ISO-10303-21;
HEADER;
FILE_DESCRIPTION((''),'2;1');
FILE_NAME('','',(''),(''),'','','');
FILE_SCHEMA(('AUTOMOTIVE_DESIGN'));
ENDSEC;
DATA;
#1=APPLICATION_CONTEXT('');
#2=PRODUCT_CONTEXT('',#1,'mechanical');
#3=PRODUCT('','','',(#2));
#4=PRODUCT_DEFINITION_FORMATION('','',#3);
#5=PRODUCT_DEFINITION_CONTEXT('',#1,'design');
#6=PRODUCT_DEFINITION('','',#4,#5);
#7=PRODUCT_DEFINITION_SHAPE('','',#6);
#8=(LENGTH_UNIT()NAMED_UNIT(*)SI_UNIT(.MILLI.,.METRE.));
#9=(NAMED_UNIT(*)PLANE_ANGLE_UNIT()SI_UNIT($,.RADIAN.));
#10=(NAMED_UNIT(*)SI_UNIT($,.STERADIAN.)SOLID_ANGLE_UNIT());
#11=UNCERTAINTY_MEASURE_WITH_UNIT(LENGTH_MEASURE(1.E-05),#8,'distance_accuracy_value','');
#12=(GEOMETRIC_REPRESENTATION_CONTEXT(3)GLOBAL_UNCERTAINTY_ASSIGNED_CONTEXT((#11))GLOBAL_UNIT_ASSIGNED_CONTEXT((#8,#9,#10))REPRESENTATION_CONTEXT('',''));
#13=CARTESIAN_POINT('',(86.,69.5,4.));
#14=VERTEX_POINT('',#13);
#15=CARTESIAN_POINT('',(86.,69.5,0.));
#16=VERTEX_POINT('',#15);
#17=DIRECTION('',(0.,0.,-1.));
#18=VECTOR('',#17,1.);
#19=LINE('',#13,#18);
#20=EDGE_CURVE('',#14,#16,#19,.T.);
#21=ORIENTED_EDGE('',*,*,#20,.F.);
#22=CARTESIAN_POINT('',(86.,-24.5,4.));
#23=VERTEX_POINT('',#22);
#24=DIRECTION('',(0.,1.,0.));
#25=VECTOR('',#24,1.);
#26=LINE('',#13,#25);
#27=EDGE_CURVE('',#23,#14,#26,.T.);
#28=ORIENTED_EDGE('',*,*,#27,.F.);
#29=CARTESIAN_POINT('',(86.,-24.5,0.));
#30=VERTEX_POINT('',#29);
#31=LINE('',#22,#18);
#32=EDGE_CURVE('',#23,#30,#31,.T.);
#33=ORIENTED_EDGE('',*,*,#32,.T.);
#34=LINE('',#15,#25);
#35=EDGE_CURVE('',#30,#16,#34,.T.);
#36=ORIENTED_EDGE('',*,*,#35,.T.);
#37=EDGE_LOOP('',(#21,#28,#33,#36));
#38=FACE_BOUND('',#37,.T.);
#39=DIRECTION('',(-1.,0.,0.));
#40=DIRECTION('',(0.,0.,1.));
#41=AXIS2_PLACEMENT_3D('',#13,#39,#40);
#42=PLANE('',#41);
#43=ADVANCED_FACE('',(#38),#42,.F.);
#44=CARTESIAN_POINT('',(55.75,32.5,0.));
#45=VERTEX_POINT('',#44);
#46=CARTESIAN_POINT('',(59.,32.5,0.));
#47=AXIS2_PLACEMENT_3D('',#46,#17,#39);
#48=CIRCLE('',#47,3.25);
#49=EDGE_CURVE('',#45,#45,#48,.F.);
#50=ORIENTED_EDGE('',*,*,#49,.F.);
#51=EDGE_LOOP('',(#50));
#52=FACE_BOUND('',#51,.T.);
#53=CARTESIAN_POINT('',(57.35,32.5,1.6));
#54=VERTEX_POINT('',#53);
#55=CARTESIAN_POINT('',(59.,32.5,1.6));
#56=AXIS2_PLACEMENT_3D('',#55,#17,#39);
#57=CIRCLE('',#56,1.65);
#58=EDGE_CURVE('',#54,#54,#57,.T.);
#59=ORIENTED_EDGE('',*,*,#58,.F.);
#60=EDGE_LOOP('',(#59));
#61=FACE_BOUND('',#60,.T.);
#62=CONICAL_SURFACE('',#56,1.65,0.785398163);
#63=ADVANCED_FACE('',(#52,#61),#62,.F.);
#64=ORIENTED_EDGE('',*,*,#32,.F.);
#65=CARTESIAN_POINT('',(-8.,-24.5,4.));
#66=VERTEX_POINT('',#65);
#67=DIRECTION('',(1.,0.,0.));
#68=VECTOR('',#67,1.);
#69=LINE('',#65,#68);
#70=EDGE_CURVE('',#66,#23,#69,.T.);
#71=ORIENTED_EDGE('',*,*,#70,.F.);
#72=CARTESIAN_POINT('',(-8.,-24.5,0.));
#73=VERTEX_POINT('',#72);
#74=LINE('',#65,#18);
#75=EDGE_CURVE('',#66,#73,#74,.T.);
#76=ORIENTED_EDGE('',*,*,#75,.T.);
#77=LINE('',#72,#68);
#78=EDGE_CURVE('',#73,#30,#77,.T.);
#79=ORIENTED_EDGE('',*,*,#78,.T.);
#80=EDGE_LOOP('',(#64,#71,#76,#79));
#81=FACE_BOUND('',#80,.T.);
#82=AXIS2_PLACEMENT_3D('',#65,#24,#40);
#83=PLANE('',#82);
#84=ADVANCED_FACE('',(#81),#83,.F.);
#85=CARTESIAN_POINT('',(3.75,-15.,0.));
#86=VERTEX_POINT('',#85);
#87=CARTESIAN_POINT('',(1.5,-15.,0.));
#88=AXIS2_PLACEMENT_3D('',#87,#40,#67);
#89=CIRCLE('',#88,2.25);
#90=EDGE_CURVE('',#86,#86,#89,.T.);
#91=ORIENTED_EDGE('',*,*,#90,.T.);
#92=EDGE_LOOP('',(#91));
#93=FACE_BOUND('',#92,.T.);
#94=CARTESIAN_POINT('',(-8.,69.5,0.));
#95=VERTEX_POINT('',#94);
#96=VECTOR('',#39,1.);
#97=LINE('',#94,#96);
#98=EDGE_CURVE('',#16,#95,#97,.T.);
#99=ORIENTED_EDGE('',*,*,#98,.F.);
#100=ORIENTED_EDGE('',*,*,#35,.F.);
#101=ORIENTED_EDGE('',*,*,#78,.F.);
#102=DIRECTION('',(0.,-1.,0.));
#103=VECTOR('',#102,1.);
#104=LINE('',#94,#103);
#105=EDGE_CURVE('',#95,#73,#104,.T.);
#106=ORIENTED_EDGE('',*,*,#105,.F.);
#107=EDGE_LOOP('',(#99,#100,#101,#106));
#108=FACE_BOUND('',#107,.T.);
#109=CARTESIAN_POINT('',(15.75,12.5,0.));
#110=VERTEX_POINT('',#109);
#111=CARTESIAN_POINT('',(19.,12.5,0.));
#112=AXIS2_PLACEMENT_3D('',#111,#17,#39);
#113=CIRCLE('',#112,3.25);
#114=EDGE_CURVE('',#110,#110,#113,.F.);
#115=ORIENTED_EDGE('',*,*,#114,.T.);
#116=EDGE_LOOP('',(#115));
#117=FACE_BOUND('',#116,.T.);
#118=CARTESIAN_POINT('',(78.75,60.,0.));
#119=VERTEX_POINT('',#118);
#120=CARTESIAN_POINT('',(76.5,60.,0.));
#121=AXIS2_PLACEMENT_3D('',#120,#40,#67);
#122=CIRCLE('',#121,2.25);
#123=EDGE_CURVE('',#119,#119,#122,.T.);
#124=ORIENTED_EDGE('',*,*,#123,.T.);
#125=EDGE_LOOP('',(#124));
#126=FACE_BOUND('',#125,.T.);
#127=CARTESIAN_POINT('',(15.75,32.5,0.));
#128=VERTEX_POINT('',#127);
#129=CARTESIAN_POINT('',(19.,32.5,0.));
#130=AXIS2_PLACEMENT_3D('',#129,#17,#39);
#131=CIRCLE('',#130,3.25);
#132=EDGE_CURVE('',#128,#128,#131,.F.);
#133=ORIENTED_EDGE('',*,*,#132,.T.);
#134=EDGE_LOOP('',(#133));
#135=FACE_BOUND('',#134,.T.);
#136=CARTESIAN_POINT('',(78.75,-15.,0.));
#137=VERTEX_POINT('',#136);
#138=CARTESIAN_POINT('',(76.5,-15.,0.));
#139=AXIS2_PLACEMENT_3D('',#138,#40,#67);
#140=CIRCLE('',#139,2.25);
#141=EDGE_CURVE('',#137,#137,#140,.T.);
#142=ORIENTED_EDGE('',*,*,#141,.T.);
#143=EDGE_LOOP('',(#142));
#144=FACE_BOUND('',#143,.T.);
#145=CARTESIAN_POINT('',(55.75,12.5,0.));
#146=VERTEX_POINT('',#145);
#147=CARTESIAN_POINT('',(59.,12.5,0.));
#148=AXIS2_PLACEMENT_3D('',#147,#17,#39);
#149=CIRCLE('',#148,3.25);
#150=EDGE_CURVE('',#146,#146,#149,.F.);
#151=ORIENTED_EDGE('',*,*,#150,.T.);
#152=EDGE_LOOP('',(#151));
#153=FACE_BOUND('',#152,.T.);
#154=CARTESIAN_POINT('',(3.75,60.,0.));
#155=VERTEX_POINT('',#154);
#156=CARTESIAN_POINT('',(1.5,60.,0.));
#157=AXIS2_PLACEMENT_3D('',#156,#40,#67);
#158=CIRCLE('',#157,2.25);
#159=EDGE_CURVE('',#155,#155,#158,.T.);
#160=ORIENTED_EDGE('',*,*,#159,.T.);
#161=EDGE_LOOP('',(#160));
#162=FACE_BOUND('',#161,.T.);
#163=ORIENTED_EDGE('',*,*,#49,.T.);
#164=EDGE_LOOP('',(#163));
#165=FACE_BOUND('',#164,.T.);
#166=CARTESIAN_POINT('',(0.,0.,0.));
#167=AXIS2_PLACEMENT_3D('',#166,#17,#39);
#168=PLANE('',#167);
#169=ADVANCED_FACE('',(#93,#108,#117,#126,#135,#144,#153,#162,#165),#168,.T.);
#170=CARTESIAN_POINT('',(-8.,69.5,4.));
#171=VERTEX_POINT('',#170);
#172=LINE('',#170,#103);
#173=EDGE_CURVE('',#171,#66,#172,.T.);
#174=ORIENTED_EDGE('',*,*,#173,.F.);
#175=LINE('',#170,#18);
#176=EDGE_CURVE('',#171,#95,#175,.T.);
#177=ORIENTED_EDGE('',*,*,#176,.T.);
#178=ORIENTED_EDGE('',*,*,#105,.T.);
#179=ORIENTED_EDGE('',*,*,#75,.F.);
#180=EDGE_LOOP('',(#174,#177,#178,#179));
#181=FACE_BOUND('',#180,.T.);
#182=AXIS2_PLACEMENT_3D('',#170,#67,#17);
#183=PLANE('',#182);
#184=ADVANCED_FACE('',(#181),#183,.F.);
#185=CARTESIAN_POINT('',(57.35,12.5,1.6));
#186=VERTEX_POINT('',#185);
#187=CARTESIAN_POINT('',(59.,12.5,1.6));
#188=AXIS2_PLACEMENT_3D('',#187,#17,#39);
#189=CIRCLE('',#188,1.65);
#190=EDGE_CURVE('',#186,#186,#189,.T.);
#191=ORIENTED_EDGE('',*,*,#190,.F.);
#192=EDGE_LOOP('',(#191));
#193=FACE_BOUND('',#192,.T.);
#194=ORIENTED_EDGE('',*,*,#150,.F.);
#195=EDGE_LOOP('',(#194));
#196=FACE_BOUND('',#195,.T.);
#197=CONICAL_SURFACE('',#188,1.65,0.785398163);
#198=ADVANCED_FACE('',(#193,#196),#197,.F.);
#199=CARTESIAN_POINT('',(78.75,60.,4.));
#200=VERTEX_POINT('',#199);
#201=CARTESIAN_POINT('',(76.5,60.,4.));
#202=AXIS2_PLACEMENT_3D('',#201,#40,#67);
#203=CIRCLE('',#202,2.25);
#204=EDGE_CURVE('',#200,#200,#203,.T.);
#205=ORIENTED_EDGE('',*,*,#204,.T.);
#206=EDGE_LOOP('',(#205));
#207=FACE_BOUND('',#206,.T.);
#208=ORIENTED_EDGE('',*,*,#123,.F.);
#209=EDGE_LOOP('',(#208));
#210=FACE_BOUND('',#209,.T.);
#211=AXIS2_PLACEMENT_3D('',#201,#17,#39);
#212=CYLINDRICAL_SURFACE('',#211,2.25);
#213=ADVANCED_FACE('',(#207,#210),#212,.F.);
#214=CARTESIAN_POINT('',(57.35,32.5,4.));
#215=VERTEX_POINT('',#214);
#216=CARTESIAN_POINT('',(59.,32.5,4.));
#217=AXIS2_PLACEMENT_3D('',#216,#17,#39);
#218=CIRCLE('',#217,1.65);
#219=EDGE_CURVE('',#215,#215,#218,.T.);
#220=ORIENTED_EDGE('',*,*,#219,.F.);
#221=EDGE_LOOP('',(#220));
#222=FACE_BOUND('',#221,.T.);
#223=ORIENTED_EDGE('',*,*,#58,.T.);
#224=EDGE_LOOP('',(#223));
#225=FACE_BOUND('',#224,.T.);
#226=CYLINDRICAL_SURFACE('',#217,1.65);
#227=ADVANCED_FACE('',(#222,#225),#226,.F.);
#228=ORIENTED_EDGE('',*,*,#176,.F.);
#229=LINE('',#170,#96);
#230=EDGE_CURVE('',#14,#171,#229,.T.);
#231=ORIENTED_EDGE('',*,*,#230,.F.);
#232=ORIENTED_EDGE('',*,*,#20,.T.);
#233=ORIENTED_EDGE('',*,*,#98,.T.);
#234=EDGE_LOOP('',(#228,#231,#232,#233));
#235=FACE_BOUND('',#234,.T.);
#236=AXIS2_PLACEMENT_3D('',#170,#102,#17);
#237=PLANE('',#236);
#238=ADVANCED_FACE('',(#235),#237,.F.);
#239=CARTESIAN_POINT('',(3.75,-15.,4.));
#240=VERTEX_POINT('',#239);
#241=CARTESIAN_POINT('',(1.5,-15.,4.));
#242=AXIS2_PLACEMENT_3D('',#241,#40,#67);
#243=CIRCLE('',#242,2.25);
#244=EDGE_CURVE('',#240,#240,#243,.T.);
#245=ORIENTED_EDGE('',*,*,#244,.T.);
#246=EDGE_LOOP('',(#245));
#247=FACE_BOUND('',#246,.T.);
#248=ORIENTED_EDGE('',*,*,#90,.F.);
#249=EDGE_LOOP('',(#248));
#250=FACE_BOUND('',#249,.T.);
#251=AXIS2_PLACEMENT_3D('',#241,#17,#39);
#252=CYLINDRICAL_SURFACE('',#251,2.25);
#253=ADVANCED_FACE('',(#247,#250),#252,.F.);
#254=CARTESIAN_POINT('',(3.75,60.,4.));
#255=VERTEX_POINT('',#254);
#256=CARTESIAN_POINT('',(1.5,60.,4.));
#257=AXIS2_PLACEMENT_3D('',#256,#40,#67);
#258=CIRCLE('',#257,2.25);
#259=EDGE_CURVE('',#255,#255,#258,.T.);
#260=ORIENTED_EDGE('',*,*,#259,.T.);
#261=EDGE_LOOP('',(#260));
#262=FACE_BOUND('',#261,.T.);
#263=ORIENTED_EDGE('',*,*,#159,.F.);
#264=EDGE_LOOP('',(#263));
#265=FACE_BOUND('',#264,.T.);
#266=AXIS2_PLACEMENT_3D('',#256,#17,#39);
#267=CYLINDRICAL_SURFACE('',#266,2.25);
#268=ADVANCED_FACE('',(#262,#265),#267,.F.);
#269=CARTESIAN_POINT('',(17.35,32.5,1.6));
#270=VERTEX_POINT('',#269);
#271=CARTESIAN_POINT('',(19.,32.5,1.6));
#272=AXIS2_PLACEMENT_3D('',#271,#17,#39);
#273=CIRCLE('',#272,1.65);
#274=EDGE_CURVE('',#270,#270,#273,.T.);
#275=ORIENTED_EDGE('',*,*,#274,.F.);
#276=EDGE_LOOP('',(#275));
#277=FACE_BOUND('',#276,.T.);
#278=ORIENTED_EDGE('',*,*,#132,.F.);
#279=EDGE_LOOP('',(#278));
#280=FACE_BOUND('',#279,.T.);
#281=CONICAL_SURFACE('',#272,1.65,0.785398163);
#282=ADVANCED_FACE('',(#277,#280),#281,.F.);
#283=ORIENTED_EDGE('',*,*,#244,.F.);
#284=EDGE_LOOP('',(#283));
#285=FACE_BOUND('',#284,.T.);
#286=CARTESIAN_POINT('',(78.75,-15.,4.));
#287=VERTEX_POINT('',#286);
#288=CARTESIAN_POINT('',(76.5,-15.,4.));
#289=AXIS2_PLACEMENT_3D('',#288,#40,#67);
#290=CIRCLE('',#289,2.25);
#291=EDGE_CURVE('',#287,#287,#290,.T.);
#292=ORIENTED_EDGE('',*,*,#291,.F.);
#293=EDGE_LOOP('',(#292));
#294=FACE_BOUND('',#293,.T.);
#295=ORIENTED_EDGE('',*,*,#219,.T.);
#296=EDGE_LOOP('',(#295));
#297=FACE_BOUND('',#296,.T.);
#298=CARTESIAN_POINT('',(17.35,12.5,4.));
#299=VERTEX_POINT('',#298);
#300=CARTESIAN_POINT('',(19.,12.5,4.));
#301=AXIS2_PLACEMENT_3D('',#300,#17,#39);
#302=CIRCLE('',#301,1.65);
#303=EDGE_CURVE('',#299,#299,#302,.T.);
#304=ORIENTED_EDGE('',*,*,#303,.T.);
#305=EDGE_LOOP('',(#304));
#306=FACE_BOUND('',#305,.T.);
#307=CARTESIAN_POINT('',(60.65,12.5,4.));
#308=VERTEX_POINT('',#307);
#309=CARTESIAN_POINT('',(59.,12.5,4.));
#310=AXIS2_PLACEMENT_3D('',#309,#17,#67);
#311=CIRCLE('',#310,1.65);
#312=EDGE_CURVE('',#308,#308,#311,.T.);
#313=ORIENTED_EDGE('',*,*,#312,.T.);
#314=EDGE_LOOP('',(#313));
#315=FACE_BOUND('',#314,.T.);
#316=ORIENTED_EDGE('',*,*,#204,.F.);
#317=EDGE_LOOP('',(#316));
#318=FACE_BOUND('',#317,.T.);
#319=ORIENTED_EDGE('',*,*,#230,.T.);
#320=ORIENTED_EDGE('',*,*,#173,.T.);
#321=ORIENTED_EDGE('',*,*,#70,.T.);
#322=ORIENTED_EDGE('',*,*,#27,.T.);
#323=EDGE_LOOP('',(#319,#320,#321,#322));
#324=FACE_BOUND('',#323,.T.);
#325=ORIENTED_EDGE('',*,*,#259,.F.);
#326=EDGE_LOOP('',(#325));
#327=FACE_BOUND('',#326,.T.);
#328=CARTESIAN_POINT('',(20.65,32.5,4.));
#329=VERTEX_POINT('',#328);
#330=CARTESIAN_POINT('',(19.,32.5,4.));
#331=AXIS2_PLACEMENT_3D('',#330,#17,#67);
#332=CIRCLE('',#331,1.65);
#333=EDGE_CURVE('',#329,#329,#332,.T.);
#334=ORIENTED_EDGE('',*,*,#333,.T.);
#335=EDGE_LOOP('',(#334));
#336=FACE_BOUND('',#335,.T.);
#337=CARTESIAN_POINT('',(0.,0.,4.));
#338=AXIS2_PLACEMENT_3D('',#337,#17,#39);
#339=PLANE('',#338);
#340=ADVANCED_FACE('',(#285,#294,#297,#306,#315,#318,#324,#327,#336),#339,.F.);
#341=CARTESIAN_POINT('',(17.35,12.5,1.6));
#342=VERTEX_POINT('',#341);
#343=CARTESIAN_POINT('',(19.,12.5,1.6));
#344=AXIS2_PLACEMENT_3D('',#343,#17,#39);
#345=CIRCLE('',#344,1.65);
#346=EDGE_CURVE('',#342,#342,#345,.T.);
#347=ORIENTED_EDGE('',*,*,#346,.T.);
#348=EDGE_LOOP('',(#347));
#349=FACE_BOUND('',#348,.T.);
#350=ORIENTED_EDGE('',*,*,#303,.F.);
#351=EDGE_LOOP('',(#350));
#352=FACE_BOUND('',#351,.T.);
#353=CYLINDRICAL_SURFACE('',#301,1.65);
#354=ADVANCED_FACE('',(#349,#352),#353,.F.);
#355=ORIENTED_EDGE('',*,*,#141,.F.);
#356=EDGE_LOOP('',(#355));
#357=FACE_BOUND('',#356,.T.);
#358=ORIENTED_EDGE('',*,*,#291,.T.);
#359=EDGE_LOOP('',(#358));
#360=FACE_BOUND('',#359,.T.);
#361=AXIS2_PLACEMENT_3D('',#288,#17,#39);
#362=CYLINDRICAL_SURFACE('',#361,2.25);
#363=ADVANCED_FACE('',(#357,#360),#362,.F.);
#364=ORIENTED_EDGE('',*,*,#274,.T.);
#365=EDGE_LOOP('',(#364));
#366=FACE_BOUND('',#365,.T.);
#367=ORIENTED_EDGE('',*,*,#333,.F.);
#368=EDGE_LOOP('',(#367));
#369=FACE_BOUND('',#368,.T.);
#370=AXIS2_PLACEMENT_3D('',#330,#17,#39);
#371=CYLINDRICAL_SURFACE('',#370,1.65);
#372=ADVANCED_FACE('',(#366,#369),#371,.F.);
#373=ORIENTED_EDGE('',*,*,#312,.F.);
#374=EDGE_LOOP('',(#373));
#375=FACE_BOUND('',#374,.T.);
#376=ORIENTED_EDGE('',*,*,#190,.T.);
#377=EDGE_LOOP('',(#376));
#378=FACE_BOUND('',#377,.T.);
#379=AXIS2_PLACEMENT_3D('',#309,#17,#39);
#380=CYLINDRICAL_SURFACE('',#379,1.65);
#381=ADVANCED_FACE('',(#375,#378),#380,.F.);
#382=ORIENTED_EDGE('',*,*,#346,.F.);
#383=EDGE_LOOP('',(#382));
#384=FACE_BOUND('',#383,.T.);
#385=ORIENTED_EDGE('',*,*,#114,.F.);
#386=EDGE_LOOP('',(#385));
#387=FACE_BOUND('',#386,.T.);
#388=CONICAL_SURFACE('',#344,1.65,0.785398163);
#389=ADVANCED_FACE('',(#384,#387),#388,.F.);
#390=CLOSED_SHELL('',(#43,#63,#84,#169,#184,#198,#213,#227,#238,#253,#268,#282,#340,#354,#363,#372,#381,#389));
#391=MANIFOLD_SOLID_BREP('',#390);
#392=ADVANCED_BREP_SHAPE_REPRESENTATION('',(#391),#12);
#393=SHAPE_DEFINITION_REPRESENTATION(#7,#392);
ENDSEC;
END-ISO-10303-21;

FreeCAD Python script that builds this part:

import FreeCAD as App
import Part
import Sketcher


def edges_at(feature, points):
    """Names of the edges that pass closest to the given points."""
    edges = feature.Shape.Edges
    near = lambda p: min(range(len(edges)), key=lambda i: edges[i].distToShape(Part.Vertex(*p))[0])
    return sorted({f"Edge{near(p) + 1}" for p in points})

doc = App.newDocument("Part")
body = doc.addObject("PartDesign::Body", "Body")

# Sketch on XY plane
sketch1 = body.newObject("Sketcher::SketchObject", "Sketch")
sketch1.AttachmentSupport = (doc.getObject("XY_Plane"), [""])
sketch1.MapMode = "FlatFace"
sketch1.addGeometry([
    Part.LineSegment(App.Vector(0, 45, 0), App.Vector(0, 0, 0)),  # 0
    Part.LineSegment(App.Vector(0, 0, 0), App.Vector(78, 0, 0)),  # 1
    Part.LineSegment(App.Vector(78, 0, 0), App.Vector(78, 45, 0)),  # 2
    Part.LineSegment(App.Vector(78, 45, 0), App.Vector(0, 45, 0)),  # 3
    Part.Circle(App.Vector(19, 12.5, 0), App.Vector(0, 0, 1), 1.6),  # 4
    Part.Circle(App.Vector(59, 12.5, 0), App.Vector(0, 0, 1), 1.6),  # 5
    Part.Circle(App.Vector(19, 32.5, 0), App.Vector(0, 0, 1), 1.6),  # 6
    Part.Circle(App.Vector(59, 32.5, 0), App.Vector(0, 0, 1), 1.6),  # 7
], False)
sketch1.addConstraint([
    Sketcher.Constraint("Coincident", 0, 2, 1, 1),
    Sketcher.Constraint("Coincident", 1, 2, 2, 1),
    Sketcher.Constraint("Coincident", 2, 2, 3, 1),
    Sketcher.Constraint("Coincident", 3, 2, 0, 1),
    Sketcher.Constraint("Vertical", 0),
    Sketcher.Constraint("Horizontal", 1),
    Sketcher.Constraint("Vertical", 2),
    Sketcher.Constraint("Horizontal", 3),
    Sketcher.Constraint("Coincident", 0, 2, -1, 1),
    Sketcher.Constraint("Equal", 4, 5),
    Sketcher.Constraint("Equal", 5, 6),
    Sketcher.Constraint("Equal", 6, 7),
    Sketcher.Constraint("Horizontal", 4, 3, 5, 3),
    Sketcher.Constraint("Horizontal", 6, 3, 7, 3),
    Sketcher.Constraint("Vertical", 4, 3, 6, 3),
    Sketcher.Constraint("Vertical", 5, 3, 7, 3),
    Sketcher.Constraint("Diameter", 4, 3.2),
    Sketcher.Constraint("DistanceX", 1, 1, 1, 2, 78.0),
    Sketcher.Constraint("DistanceY", 0, 2, 0, 1, 45.0),
    Sketcher.Constraint("DistanceX", -1, 1, 4, 3, 19.0),
    Sketcher.Constraint("DistanceX", -1, 1, 5, 3, 59.0),
    Sketcher.Constraint("DistanceY", 4, 3, 6, 3, 20.0),
    Sketcher.Constraint("DistanceY", -1, 1, 4, 3, 12.5),
])
pad1 = body.newObject("PartDesign::Pad", "Pad")
pad1.Profile = sketch1
pad1.Length = 4

# Sketch on XY plane
sketch2 = body.newObject("Sketcher::SketchObject", "Sketch001")
sketch2.AttachmentSupport = (doc.getObject("XY_Plane"), [""])
sketch2.MapMode = "FlatFace"
sketch2.addGeometry([
    Part.LineSegment(App.Vector(-8, 69.5, 0), App.Vector(-8, -24.5, 0)),  # 0
    Part.LineSegment(App.Vector(-8, -24.5, 0), App.Vector(86, -24.5, 0)),  # 1
    Part.LineSegment(App.Vector(86, -24.5, 0), App.Vector(86, 69.5, 0)),  # 2
    Part.LineSegment(App.Vector(86, 69.5, 0), App.Vector(-8, 69.5, 0)),  # 3
    Part.Circle(App.Vector(1.5, -15, 0), App.Vector(0, 0, 1), 2.2),  # 4
    Part.Circle(App.Vector(76.5, -15, 0), App.Vector(0, 0, 1), 2.2),  # 5
    Part.Circle(App.Vector(1.5, 60, 0), App.Vector(0, 0, 1), 2.2),  # 6
    Part.Circle(App.Vector(76.5, 60, 0), App.Vector(0, 0, 1), 2.2),  # 7
], False)
sketch2.addConstraint([
    Sketcher.Constraint("Coincident", 0, 2, 1, 1),
    Sketcher.Constraint("Coincident", 1, 2, 2, 1),
    Sketcher.Constraint("Coincident", 2, 2, 3, 1),
    Sketcher.Constraint("Coincident", 3, 2, 0, 1),
    Sketcher.Constraint("Vertical", 0),
    Sketcher.Constraint("Horizontal", 1),
    Sketcher.Constraint("Vertical", 2),
    Sketcher.Constraint("Horizontal", 3),
    Sketcher.Constraint("Equal", 4, 5),
    Sketcher.Constraint("Equal", 5, 6),
    Sketcher.Constraint("Equal", 6, 7),
    Sketcher.Constraint("Horizontal", 4, 3, 5, 3),
    Sketcher.Constraint("Horizontal", 6, 3, 7, 3),
    Sketcher.Constraint("Vertical", 4, 3, 6, 3),
    Sketcher.Constraint("Vertical", 5, 3, 7, 3),
    Sketcher.Constraint("Equal", 3, 0),
    Sketcher.Constraint("Diameter", 4, 4.5),
    Sketcher.Constraint("DistanceX", 1, 1, 1, 2, 94.0),
    Sketcher.Constraint("DistanceY", 4, 3, -1, 1, 15.0),
    Sketcher.Constraint("DistanceY", -1, 1, 6, 3, 60.0),
    Sketcher.Constraint("DistanceX", 0, 2, -1, 1, 8.0),
    Sketcher.Constraint("DistanceX", 4, 3, 5, 3, 75.0),
    Sketcher.Constraint("DistanceX", -1, 1, 4, 3, 1.5),
    Sketcher.Constraint("DistanceY", 0, 2, -1, 1, 24.5),
])
pad2 = body.newObject("PartDesign::Pad", "Pad001")
pad2.Profile = sketch2
pad2.Length = 4

# Sketch on XY plane
sketch3 = body.newObject("Sketcher::SketchObject", "Sketch002")
sketch3.AttachmentSupport = (doc.getObject("XY_Plane"), [""])
sketch3.MapMode = "FlatFace"
sketch3.addGeometry([
    Part.Circle(App.Vector(59, 32.5, 0), App.Vector(0, 0, 1), 1.6),
    Part.Circle(App.Vector(59, 12.5, 0), App.Vector(0, 0, 1), 1.6),
    Part.Circle(App.Vector(19, 12.5, 0), App.Vector(0, 0, 1), 1.6),
    Part.Circle(App.Vector(19, 32.5, 0), App.Vector(0, 0, 1), 1.6),
], False)
sketch3.addConstraint([
    Sketcher.Constraint("Equal", 0, 1),
    Sketcher.Constraint("Equal", 1, 2),
    Sketcher.Constraint("Equal", 2, 3),
    Sketcher.Constraint("Horizontal", 1, 3, 2, 3),
    Sketcher.Constraint("Horizontal", 0, 3, 3, 3),
    Sketcher.Constraint("Vertical", 0, 3, 1, 3),
    Sketcher.Constraint("Vertical", 2, 3, 3, 3),
    Sketcher.Constraint("Diameter", 0, 3.3),
    Sketcher.Constraint("DistanceX", -1, 1, 0, 3, 59.0),
    Sketcher.Constraint("DistanceX", -1, 1, 2, 3, 19.0),
    Sketcher.Constraint("DistanceY", 1, 3, 0, 3, 20.0),
    Sketcher.Constraint("DistanceY", -1, 1, 0, 3, 32.5),
])
pocket1 = body.newObject("PartDesign::Pocket", "Pocket")
pocket1.Profile = sketch3
pocket1.Type = "ThroughAll"
pocket1.Reversed = True
doc.recompute()

chamfer = body.newObject("PartDesign::Chamfer", "Chamfer")
chamfer.Base = (pocket1, edges_at(pocket1, [
    (20.65, 32.5, 0),
    (20.65, 12.5, 0),
    (60.65, 12.5, 0),
    (60.65, 32.5, 0),
]))
chamfer.Size = 1.6

doc.recompute()
